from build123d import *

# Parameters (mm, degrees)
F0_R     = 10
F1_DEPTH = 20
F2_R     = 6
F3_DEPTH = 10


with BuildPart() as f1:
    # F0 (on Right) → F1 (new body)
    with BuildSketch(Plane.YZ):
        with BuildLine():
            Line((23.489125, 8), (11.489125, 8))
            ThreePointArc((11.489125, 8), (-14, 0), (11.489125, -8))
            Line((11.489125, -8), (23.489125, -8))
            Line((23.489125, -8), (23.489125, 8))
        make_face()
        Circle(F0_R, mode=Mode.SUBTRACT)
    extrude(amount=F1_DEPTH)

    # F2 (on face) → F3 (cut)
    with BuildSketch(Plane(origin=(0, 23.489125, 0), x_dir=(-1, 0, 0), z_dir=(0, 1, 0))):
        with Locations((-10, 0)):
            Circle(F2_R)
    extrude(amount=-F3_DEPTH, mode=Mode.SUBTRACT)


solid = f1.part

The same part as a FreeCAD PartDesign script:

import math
import FreeCAD as App
import Part
import Sketcher

V = App.Vector

doc = App.newDocument("Part")
body = doc.addObject("PartDesign::Body", "Body")

# Sketch on YZ plane
sketch1 = doc.addObject("Sketcher::SketchObject", "Sketch")
body.addObject(sketch1)
sketch1.AttachmentSupport = (doc.YZ_Plane, [""])
sketch1.MapMode = "FlatFace"
sketch1.addGeometry(Part.LineSegment(V(23.489125, 8, 0), V(11.489125, 8, 0)), False)
sketch1.addGeometry(Part.ArcOfCircle(Part.Circle(V(0, 0, 0), V(0, 0, 1), 14), math.radians(34.849905), math.radians(325.150095)), False)
sketch1.addGeometry(Part.LineSegment(V(11.489125, -8, 0), V(23.489125, -8, 0)), False)
sketch1.addGeometry(Part.LineSegment(V(23.489125, -8, 0), V(23.489125, 8, 0)), False)
sketch1.addGeometry(Part.Circle(V(0, 0, 0), V(0, 0, 1), 10), False)
sketch1.addConstraint(Sketcher.Constraint("Coincident", 0, 2, 1, 1))
sketch1.addConstraint(Sketcher.Constraint("Coincident", 1, 2, 2, 1))
sketch1.addConstraint(Sketcher.Constraint("Coincident", 2, 2, 3, 1))
sketch1.addConstraint(Sketcher.Constraint("Coincident", 3, 2, 0, 1))
sketch1.addConstraint(Sketcher.Constraint("Horizontal", 0))
sketch1.addConstraint(Sketcher.Constraint("Horizontal", 2))
sketch1.addConstraint(Sketcher.Constraint("Vertical", 3))
sketch1.addConstraint(Sketcher.Constraint("Coincident", 1, 3, -1, 1))
sketch1.addConstraint(Sketcher.Constraint("Coincident", 4, 3, -1, 1))
sketch1.addConstraint(Sketcher.Constraint("Vertical", 0, 2, 1, 2))
sketch1.addConstraint(Sketcher.Constraint("Diameter", 4, 20.0))
sketch1.addConstraint(Sketcher.Constraint("Radius", 1, 14.0))
sketch1.addConstraint(Sketcher.Constraint("DistanceX", 0, 2, 0, 1, 12.0))
sketch1.addConstraint(Sketcher.Constraint("DistanceY", 3, 1, 3, 2, 16.0))
pad1 = doc.addObject("PartDesign::Pad", "Pad")
body.addObject(pad1)
pad1.Profile = sketch1
pad1.Length = 20

# Sketch on XZ plane
sketch2 = doc.addObject("Sketcher::SketchObject", "Sketch001")
body.addObject(sketch2)
sketch2.AttachmentSupport = (doc.XZ_Plane, [""])
sketch2.MapMode = "FlatFace"
sketch2.AttachmentOffset = App.Placement(V(0, 0, -23.489125), App.Rotation())
sketch2.addGeometry(Part.Circle(V(10, 0, 0), V(0, 0, 1), 6), False)
sketch2.addConstraint(Sketcher.Constraint("PointOnObject", 0, 3, -1))
sketch2.addConstraint(Sketcher.Constraint("Diameter", 0, 12.0))
sketch2.addConstraint(Sketcher.Constraint("DistanceX", -1, 1, 0, 3, 10.0))
pocket1 = doc.addObject("PartDesign::Pocket", "Pocket")
body.addObject(pocket1)
pocket1.Profile = sketch2
pocket1.Length = 10
pocket1.Reversed = True

doc.recompute()
